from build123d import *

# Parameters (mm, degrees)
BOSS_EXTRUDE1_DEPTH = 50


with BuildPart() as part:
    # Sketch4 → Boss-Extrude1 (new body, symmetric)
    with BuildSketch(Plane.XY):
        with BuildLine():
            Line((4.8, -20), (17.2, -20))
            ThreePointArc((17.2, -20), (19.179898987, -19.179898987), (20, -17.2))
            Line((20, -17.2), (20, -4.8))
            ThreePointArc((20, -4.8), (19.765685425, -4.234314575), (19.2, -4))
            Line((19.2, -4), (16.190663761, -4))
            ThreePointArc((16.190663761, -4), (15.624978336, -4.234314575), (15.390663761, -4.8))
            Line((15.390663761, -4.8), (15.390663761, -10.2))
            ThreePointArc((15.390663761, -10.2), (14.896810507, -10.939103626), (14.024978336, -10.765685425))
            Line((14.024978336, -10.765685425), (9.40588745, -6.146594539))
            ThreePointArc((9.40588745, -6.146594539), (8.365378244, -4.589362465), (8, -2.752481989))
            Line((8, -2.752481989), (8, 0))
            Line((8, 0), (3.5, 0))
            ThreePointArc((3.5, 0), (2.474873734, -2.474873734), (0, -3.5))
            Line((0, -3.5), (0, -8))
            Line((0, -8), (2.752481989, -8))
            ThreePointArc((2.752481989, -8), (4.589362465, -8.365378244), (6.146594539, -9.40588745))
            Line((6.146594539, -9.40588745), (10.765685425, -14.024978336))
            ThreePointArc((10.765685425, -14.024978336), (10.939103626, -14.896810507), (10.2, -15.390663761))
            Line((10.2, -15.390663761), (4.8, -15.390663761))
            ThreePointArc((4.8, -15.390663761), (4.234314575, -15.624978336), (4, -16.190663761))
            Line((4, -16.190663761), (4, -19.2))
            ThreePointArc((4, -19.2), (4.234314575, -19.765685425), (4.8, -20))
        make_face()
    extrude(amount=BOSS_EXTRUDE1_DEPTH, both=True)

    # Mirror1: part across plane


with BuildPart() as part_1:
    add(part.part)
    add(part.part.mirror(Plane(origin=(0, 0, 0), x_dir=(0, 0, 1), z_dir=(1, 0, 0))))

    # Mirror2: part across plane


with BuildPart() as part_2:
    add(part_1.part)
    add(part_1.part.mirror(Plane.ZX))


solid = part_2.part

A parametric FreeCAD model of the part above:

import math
import FreeCAD as App
import Part
import Sketcher

doc = App.newDocument("Part")
body = doc.addObject("PartDesign::Body", "Body")

sketch1 = body.newObject("Sketcher::SketchObject", "Sketch")
sketch1.AttachmentSupport = (doc.getObject("XY_Plane"), [""])
sketch1.MapMode = "FlatFace"
sketch1.addGeometry([
    Part.LineSegment(App.Vector(4.8, -20, 0), App.Vector(17.2, -20, 0)),
    Part.ArcOfCircle(Part.Circle(App.Vector(17.2, -17.2, 0), App.Vector(0, 0, 1), 2.8), math.radians(-90), math.radians(0)),
    Part.LineSegment(App.Vector(20, -17.2, 0), App.Vector(20, -4.8, 0)),
    Part.ArcOfCircle(Part.Circle(App.Vector(19.2, -4.8, 0), App.Vector(0, 0, 1), 0.8), math.radians(0), math.radians(90)),
    Part.LineSegment(App.Vector(19.2, -4, 0), App.Vector(16.2, -4, 0)),
    Part.ArcOfCircle(Part.Circle(App.Vector(16.2, -4.8, 0), App.Vector(0, 0, 1), 0.8), math.radians(90), math.radians(180)),
    Part.LineSegment(App.Vector(15.4, -4.8, 0), App.Vector(15.4, -10.2, 0)),
    Part.ArcOfCircle(Part.Circle(App.Vector(14.6, -10.2, 0), App.Vector(0, 0, 1), 0.8), math.radians(-135), math.radians(0)),
    Part.LineSegment(App.Vector(14, -10.8, 0), App.Vector(9.4, -6.1, 0)),
    Part.ArcOfCircle(Part.Circle(App.Vector(12.8, -2.8, 0), App.Vector(0, 0, 1), 4.8), math.radians(180), math.radians(225)),
    Part.LineSegment(App.Vector(8, -2.8, 0), App.Vector(8, 0, 0)),
    Part.LineSegment(App.Vector(8, 0, 0), App.Vector(3.5, 0, 0)),
    Part.ArcOfCircle(Part.Circle(App.Vector(0, 0, 0), App.Vector(0, 0, 1), 3.5), math.radians(-90), math.radians(0)),
    Part.LineSegment(App.Vector(0, -3.5, 0), App.Vector(0, -8, 0)),
    Part.LineSegment(App.Vector(0, -8, 0), App.Vector(2.8, -8, 0)),
    Part.ArcOfCircle(Part.Circle(App.Vector(2.8, -12.8, 0), App.Vector(0, 0, 1), 4.8), math.radians(45), math.radians(90)),
    Part.LineSegment(App.Vector(6.1, -9.4, 0), App.Vector(10.8, -14, 0)),
    Part.ArcOfCircle(Part.Circle(App.Vector(10.2, -14.6, 0), App.Vector(0, 0, 1), 0.8), math.radians(-90), math.radians(45)),
    Part.LineSegment(App.Vector(10.2, -15.4, 0), App.Vector(4.8, -15.4, 0)),
    Part.ArcOfCircle(Part.Circle(App.Vector(4.8, -16.2, 0), App.Vector(0, 0, 1), 0.8), math.radians(90), math.radians(180)),
    Part.LineSegment(App.Vector(4, -16.2, 0), App.Vector(4, -19.2, 0)),
    Part.ArcOfCircle(Part.Circle(App.Vector(4.8, -19.2, 0), App.Vector(0, 0, 1), 0.8), math.radians(180), math.radians(270)),
], False)
sketch1.addConstraint([
    Sketcher.Constraint("Tangent", 0, 2, 1, 1),
    Sketcher.Constraint("Tangent", 1, 2, 2, 1),
    Sketcher.Constraint("Tangent", 2, 2, 3, 1),
    Sketcher.Constraint("Tangent", 3, 2, 4, 1),
    Sketcher.Constraint("Tangent", 4, 2, 5, 1),
    Sketcher.Constraint("Tangent", 5, 2, 6, 1),
    Sketcher.Constraint("Tangent", 6, 2, 7, 2),
    Sketcher.Constraint("Tangent", 7, 1, 8, 1),
    Sketcher.Constraint("Tangent", 8, 2, 9, 2),
    Sketcher.Constraint("Tangent", 9, 1, 10, 1),
    Sketcher.Constraint("Coincident", 10, 2, 11, 1),
    Sketcher.Constraint("Coincident", 11, 2, 12, 2),
    Sketcher.Constraint("Coincident", 12, 1, 13, 1),
    Sketcher.Constraint("Coincident", 13, 2, 14, 1),
    Sketcher.Constraint("Tangent", 14, 2, 15, 2),
    Sketcher.Constraint("Tangent", 15, 1, 16, 1),
    Sketcher.Constraint("Tangent", 16, 2, 17, 2),
    Sketcher.Constraint("Tangent", 17, 1, 18, 1),
    Sketcher.Constraint("Tangent", 18, 2, 19, 1),
    Sketcher.Constraint("Tangent", 19, 2, 20, 1),
    Sketcher.Constraint("Tangent", 20, 2, 21, 1),
    Sketcher.Constraint("Tangent", 21, 2, 0, 1),
    Sketcher.Constraint("Horizontal", 0),
    Sketcher.Constraint("Vertical", 2),
    Sketcher.Constraint("Horizontal", 4),
    Sketcher.Constraint("Vertical", 6),
    Sketcher.Constraint("Vertical", 10),
    Sketcher.Constraint("Horizontal", 11),
    Sketcher.Constraint("Vertical", 13),
    Sketcher.Constraint("Horizontal", 14),
    Sketcher.Constraint("Horizontal", 18),
    Sketcher.Constraint("Vertical", 20),
    Sketcher.Constraint("Coincident", 12, 3, -1, 1),
    Sketcher.Constraint("Equal", 3, 5),
    Sketcher.Constraint("Equal", 5, 7),
    Sketcher.Constraint("Equal", 9, 15),
    Sketcher.Constraint("Equal", 7, 17),
    Sketcher.Constraint("Equal", 17, 19),
    Sketcher.Constraint("Equal", 19, 21),
    Sketcher.Constraint("PointOnObject", 10, 2, -1),
    Sketcher.Constraint("PointOnObject", 12, 1, -2),
    Sketcher.Constraint("Parallel", 8, 16),
    Sketcher.Constraint("Equal", 0, 2),
    Sketcher.Constraint("Equal", 18, 6),
    Sketcher.Constraint("Equal", 14, 10),
    Sketcher.Constraint("Equal", 11, 13),
    Sketcher.Constraint("Equal", 4, 20),
    Sketcher.Constraint("Equal", 8, 16),
    Sketcher.Constraint("Radius", 1, 2.8),
    Sketcher.Constraint("Radius", 3, 0.8),
    Sketcher.Constraint("Radius", 9, 4.8),
    Sketcher.Constraint("Radius", 12, 3.5),
    Sketcher.Constraint("DistanceX", 0, 1, 0, 2, 12.4),
    Sketcher.Constraint("DistanceX", 11, 2, 11, 1, 4.5),
    Sketcher.Constraint("DistanceX", 18, 2, 18, 1, 5.4),
    Sketcher.Constraint("DistanceY", 0, 2, -1, 1, 20.0),
    Sketcher.Constraint("DistanceX", 14, 1, 14, 2, 2.752482),
])
pad1 = body.newObject("PartDesign::Pad", "Pad")
pad1.Profile = sketch1
pad1.Length = 100
pad1.Midplane = True
body2 = doc.addObject("PartDesign::Body", "Body001")
doc.recompute()

body2.BaseFeature = body
doc.recompute()

mirroring = doc.addObject("Part::Mirroring", "Mirroring")
mirroring.Source = body
mirroring.Base = App.Vector(0, 0, 0)
mirroring.Normal = App.Vector(1, 0, 0)
body3 = doc.addObject("PartDesign::Body", "Body002")
body3.BaseFeature = mirroring
boolean = body2.newObject("PartDesign::Boolean", "Boolean")
boolean.Type = "Fuse"
boolean.addObjects([body3])
doc.recompute()
body4 = doc.addObject("PartDesign::Body", "Body003")
doc.recompute()

body4.BaseFeature = body2
doc.recompute()

mirroring2 = doc.addObject("Part::Mirroring", "Mirroring001")
mirroring2.Source = body2
mirroring2.Base = App.Vector(0, 0, 0)
mirroring2.Normal = App.Vector(0, 1, 0)
body5 = doc.addObject("PartDesign::Body", "Body004")
body5.BaseFeature = mirroring2
boolean2 = body4.newObject("PartDesign::Boolean", "Boolean001")
boolean2.Type = "Fuse"
boolean2.addObjects([body5])
doc.recompute()
mirroring.Visibility = False
mirroring2.Visibility = False

doc.recompute()
